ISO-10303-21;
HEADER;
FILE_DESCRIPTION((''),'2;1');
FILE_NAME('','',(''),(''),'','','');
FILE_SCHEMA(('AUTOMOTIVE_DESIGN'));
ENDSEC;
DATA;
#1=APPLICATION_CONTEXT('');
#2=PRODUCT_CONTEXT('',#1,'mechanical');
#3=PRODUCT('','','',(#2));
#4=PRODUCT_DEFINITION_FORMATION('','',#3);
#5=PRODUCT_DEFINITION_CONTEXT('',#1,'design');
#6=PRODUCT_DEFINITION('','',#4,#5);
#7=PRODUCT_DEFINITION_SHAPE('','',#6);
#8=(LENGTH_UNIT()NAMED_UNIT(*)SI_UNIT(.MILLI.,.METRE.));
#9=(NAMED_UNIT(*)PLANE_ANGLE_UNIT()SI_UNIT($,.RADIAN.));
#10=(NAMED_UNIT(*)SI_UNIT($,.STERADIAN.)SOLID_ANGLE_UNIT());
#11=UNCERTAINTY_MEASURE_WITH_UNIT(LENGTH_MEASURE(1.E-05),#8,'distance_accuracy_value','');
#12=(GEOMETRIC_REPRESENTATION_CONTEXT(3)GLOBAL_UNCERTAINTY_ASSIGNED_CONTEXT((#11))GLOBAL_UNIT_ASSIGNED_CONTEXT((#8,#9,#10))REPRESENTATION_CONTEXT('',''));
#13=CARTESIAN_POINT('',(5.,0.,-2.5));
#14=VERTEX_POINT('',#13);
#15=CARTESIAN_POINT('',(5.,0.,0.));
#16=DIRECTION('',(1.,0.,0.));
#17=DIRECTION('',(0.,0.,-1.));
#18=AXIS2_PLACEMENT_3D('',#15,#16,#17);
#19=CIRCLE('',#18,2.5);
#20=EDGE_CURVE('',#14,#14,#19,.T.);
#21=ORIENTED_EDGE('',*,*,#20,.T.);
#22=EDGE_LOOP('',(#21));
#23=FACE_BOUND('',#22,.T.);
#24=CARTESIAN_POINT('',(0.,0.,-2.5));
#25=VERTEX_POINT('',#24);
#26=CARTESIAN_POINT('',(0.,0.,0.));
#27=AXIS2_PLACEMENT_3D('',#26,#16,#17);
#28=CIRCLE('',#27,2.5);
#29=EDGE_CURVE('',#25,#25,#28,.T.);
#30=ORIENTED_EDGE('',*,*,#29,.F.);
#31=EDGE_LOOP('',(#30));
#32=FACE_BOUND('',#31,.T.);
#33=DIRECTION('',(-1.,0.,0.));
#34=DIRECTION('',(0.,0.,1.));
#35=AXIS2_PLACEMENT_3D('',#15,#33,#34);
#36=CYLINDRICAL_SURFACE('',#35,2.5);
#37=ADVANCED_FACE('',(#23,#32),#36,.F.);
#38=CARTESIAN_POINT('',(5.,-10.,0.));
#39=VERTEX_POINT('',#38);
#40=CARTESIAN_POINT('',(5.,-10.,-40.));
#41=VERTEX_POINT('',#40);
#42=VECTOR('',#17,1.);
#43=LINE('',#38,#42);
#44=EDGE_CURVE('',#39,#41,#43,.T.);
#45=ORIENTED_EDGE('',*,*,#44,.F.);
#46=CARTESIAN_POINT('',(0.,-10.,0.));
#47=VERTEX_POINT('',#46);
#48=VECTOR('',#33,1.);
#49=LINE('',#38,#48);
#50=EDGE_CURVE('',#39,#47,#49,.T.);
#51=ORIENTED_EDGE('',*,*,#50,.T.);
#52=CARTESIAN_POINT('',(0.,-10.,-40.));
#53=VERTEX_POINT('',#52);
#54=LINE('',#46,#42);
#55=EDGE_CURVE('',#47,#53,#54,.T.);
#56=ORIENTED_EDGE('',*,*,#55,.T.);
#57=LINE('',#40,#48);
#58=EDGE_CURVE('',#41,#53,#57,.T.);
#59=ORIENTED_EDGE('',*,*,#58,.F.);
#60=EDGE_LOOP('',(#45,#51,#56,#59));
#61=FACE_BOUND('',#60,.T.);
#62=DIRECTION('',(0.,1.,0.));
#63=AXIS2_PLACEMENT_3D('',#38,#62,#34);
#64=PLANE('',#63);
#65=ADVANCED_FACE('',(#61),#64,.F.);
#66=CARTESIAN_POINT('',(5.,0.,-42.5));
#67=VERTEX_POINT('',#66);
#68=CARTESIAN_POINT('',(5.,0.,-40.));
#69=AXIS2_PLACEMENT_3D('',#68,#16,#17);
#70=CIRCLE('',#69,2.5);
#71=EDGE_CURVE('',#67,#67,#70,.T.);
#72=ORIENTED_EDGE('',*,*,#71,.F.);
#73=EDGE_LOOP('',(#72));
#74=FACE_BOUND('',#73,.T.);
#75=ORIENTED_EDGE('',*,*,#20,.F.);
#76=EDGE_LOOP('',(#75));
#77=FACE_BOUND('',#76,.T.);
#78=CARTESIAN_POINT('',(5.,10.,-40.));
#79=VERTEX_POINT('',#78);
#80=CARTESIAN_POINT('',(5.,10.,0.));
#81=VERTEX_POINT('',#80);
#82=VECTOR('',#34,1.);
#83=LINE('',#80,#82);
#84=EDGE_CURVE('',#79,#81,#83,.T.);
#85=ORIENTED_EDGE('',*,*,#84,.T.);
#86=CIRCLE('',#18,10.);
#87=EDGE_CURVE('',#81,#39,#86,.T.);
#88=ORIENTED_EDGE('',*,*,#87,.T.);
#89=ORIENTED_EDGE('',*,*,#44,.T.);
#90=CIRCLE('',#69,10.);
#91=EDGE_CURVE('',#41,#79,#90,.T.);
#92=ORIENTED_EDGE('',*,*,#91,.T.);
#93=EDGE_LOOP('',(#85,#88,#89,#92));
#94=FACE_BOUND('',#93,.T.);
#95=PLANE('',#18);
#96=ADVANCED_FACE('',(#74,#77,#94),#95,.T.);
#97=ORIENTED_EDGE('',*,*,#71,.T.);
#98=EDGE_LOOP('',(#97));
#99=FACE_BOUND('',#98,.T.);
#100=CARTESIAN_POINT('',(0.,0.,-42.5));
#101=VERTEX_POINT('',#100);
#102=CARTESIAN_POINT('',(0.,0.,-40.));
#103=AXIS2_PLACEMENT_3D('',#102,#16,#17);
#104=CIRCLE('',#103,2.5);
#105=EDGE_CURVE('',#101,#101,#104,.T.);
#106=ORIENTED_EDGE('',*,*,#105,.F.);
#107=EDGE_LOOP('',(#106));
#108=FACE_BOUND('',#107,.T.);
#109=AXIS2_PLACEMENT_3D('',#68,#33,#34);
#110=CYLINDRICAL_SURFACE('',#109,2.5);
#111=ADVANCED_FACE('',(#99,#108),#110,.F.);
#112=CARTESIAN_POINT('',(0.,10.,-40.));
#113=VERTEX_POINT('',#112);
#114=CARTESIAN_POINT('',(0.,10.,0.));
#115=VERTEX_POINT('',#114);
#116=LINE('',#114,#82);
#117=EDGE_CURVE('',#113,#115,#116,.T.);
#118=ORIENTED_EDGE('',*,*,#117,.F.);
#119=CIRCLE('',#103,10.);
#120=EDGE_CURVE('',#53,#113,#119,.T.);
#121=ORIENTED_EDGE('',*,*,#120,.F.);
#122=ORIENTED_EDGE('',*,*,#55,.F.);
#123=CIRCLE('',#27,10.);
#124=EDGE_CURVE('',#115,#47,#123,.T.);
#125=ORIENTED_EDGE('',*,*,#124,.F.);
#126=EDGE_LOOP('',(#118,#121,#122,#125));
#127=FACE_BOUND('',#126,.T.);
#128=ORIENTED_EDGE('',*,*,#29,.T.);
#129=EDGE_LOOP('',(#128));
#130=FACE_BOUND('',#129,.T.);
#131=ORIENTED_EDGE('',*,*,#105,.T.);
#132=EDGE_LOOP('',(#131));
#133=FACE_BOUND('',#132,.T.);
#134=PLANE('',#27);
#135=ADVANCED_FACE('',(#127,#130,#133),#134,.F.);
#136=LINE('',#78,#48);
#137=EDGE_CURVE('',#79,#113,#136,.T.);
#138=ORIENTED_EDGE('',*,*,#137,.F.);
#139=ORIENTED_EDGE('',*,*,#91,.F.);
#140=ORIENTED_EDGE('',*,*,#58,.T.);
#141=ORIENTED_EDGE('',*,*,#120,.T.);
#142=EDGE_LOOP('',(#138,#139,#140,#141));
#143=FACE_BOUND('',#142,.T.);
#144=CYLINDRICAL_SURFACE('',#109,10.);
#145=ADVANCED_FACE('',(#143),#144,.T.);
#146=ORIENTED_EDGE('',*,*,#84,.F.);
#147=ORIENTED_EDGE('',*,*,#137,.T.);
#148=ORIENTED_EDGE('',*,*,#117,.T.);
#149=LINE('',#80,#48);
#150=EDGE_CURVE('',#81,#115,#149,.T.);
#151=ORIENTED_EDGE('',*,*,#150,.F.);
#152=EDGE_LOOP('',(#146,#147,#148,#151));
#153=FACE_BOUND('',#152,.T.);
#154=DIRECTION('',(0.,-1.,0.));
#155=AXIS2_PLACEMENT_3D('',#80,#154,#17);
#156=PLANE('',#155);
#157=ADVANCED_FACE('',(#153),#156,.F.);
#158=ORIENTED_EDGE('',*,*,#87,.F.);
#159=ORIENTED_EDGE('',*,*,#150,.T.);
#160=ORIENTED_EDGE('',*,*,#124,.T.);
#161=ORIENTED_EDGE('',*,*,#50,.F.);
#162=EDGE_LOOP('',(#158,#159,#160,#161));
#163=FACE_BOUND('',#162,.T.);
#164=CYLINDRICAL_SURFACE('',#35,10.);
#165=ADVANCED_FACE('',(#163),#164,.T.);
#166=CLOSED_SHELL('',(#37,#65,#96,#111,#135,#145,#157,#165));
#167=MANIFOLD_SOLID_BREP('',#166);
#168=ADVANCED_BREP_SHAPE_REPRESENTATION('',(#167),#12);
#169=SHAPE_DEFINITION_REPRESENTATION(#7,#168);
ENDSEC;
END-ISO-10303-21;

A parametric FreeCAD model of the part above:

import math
import FreeCAD as App
import Part
import Sketcher

V = App.Vector

doc = App.newDocument("Part")
body = doc.addObject("PartDesign::Body", "Body")

# Sketch on YZ plane
sketch1 = doc.addObject("Sketcher::SketchObject", "Sketch")
body.addObject(sketch1)
sketch1.AttachmentSupport = (doc.YZ_Plane, [""])
sketch1.MapMode = "FlatFace"
sketch1.addGeometry([
    Part.LineSegment(V(10, -40, 0), V(10, 0, 0)),  # 0
    Part.ArcOfCircle(Part.Circle(V(0, 0, 0), V(0, 0, 1), 10), math.radians(0), math.radians(180)),  # 1
    Part.LineSegment(V(-10, 0, 0), V(-10, -40, 0)),  # 2
    Part.ArcOfCircle(Part.Circle(V(0, -40, 0), V(0, 0, 1), 10), math.radians(180), math.radians(360)),  # 3
    Part.Circle(V(0, -40, 0), V(0, 0, 1), 2.5),  # 4
    Part.Circle(V(0, 0, 0), V(0, 0, 1), 2.5),  # 5
], False)
sketch1.addConstraint([
    Sketcher.Constraint("Tangent", 0, 2, 1, 1),
    Sketcher.Constraint("Tangent", 1, 2, 2, 1),
    Sketcher.Constraint("Tangent", 2, 2, 3, 1),
    Sketcher.Constraint("Tangent", 3, 2, 0, 1),
    Sketcher.Constraint("Vertical", 0),
    Sketcher.Constraint("Vertical", 2),
    Sketcher.Constraint("Coincident", 1, 3, -1, 1),
    Sketcher.Constraint("Coincident", 5, 3, -1, 1),
    Sketcher.Constraint("Coincident", 4, 3, 3, 3),
    Sketcher.Constraint("Equal", 4, 5),
    Sketcher.Constraint("Diameter", 4, 5.0),
    Sketcher.Constraint("Radius", 1, 10.0),
    Sketcher.Constraint("DistanceY", 0, 1, 0, 2, 40.0),
])
pad1 = doc.addObject("PartDesign::Pad", "Pad")
body.addObject(pad1)
pad1.Profile = sketch1
pad1.Length = 5

doc.recompute()
